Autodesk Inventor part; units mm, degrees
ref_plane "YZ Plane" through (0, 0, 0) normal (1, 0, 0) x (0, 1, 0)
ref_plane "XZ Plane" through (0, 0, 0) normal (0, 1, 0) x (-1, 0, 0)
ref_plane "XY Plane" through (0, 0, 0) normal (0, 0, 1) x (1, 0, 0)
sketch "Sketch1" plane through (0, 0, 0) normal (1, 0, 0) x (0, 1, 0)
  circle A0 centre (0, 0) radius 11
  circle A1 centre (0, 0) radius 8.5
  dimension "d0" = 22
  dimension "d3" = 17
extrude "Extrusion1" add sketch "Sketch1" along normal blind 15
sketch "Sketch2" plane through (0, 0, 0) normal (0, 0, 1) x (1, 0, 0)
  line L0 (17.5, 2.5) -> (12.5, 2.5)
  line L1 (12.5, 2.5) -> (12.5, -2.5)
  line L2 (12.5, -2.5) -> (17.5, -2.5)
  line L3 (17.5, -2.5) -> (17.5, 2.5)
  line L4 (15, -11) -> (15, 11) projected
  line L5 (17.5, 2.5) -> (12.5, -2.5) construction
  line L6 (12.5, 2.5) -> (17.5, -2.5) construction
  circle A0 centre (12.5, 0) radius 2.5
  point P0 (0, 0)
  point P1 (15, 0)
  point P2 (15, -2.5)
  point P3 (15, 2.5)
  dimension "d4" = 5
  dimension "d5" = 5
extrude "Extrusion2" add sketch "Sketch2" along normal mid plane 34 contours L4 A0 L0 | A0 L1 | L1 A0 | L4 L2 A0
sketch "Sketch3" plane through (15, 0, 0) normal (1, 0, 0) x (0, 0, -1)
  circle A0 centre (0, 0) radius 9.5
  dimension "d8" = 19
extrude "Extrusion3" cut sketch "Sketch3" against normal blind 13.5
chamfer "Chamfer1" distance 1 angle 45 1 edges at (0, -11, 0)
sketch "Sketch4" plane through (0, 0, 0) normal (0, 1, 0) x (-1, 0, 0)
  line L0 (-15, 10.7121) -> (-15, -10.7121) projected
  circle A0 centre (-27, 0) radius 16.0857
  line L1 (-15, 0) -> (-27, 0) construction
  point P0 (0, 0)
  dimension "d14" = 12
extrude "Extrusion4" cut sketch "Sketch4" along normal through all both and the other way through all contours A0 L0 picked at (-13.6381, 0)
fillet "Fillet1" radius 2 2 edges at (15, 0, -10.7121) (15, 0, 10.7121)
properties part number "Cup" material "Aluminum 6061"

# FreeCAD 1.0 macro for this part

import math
import FreeCAD as App
import Part
import Sketcher
from FreeCAD import Vector


def edges_at(feature, points):
    """Names of the edges that pass closest to the given points."""
    edges = feature.Shape.Edges
    near = lambda p: min(range(len(edges)), key=lambda i: edges[i].distToShape(Part.Vertex(*p))[0])
    return sorted({f"Edge{near(p) + 1}" for p in points})

doc = App.newDocument("Part")
params = doc.addObject("Spreadsheet::Sheet", "Params")
for row, (alias, value) in enumerate([
    ("sketch1_diameter", "22 mm"),
    ("sketch1_diameter2", "17 mm"),
    ("pad1_length", "15 mm"),
    ("sketch2_radius", "2.5 mm"),
    ("sketch2_width", "2.5 mm"),
    ("pad2_length", "34 mm"),
    ("sketch3_diameter", "19 mm"),
    ("pocket1_length", "13.5 mm"),
    ("chamfer_size", "1 mm"),
    ("sketch4_width", "12 mm"),
    ("fillet_radius", "2 mm"),
], start=1):
    params.set(f"A{row}", alias)
    params.set(f"B{row}", "=" + value)
    params.setAlias(f"B{row}", alias)

body = doc.addObject("PartDesign::Body", "Body")

# Sketch on YZ plane
sketch1 = body.newObject("Sketcher::SketchObject", "Sketch")
sketch1.AttachmentSupport = (doc.getObject("YZ_Plane"), [""])
sketch1.MapMode = "FlatFace"
sketch1.addGeometry([
    Part.Circle(Vector(0, 0, 0), Vector(0, 0, 1), 11),
    Part.Circle(Vector(0, 0, 0), Vector(0, 0, 1), 8),
], False)
sketch1.addConstraint([
    Sketcher.Constraint("Coincident", 0, 3, -1, 1),
    Sketcher.Constraint("Coincident", 1, 3, -1, 1),
    Sketcher.Constraint("Diameter", 0, 22.0),
    Sketcher.Constraint("Diameter", 1, 17.0),
])
sketch1.setExpression("Constraints[2]", "Params.sketch1_diameter")
sketch1.setExpression("Constraints[3]", "Params.sketch1_diameter2")
pad1 = body.newObject("PartDesign::Pad", "Pad")
pad1.Profile = sketch1
pad1.setExpression("Length", "Params.pad1_length")

# Sketch on XY plane
sketch2 = body.newObject("Sketcher::SketchObject", "Sketch001")
sketch2.AttachmentSupport = (doc.getObject("XY_Plane"), [""])
sketch2.MapMode = "FlatFace"
sketch2.addGeometry([
    Part.LineSegment(Vector(15, 2.5, 0), Vector(12.5, 2.5, 0)),
    Part.ArcOfCircle(Part.Circle(Vector(12.5, 0, 0), Vector(0, 0, 1), 2.5), math.radians(90), math.radians(270)),
    Part.LineSegment(Vector(12.5, -2.5, 0), Vector(15, -2.5, 0)),
    Part.LineSegment(Vector(15, -2.5, 0), Vector(15, 2.5, 0)),
], False)
sketch2.addConstraint([
    Sketcher.Constraint("Tangent", 0, 2, 1, 1),
    Sketcher.Constraint("Tangent", 1, 2, 2, 1),
    Sketcher.Constraint("Coincident", 2, 2, 3, 1),
    Sketcher.Constraint("Coincident", 3, 2, 0, 1),
    Sketcher.Constraint("Horizontal", 0),
    Sketcher.Constraint("Horizontal", 2),
    Sketcher.Constraint("Vertical", 3),
    Sketcher.Constraint("PointOnObject", 1, 3, -1),
    Sketcher.Constraint("Radius", 1, 2.5),
    Sketcher.Constraint("DistanceX", 0, 2, 0, 1, 2.5),
    Sketcher.Constraint("DistanceX", -1, 1, 2, 2, 15.0),
])
sketch2.setExpression("Constraints[8]", "Params.sketch2_radius")
sketch2.setExpression("Constraints[9]", "Params.sketch2_width")
pad2 = body.newObject("PartDesign::Pad", "Pad001")
pad2.Profile = sketch2
pad2.setExpression("Length", "Params.pad2_length")
pad2.Midplane = True

# Sketch on YZ plane
sketch3 = body.newObject("Sketcher::SketchObject", "Sketch002")
sketch3.AttachmentSupport = (doc.getObject("YZ_Plane"), [""])
sketch3.MapMode = "FlatFace"
sketch3.AttachmentOffset = App.Placement(Vector(0, 0, 15), App.Rotation())
sketch3.addGeometry(Part.Circle(Vector(0, 0, 0), Vector(0, 0, 1), 10), False)
sketch3.addConstraint([
    Sketcher.Constraint("Coincident", 0, 3, -1, 1),
    Sketcher.Constraint("Diameter", 0, 19.0),
])
sketch3.setExpression("Constraints[1]", "Params.sketch3_diameter")
pocket1 = body.newObject("PartDesign::Pocket", "Pocket")
pocket1.Profile = sketch3
pocket1.setExpression("Length", "Params.pocket1_length")
doc.recompute()

chamfer = body.newObject("PartDesign::Chamfer", "Chamfer")
chamfer.Base = (pocket1, edges_at(pocket1, [(0, -11, 0)]))
chamfer.setExpression("Size", "Params.chamfer_size")

# Sketch on XZ plane
sketch4 = body.newObject("Sketcher::SketchObject", "Sketch003")
sketch4.AttachmentSupport = (doc.getObject("XZ_Plane"), [""])
sketch4.MapMode = "FlatFace"
sketch4.addGeometry([
    Part.ArcOfCircle(Part.Circle(Vector(27, 0, 0), Vector(0, 0, 1), 16), math.radians(138), math.radians(222)),
    Part.LineSegment(Vector(15, -11, 0), Vector(15, 11, 0)),
], False)
sketch4.addConstraint([
    Sketcher.Constraint("Coincident", 0, 1, 1, 2),
    Sketcher.Constraint("Coincident", 1, 1, 0, 2),
    Sketcher.Constraint("Vertical", 1),
    Sketcher.Constraint("PointOnObject", 0, 3, -1),
    Sketcher.Constraint("DistanceX", 0, 1, 0, 3, 12.0),
    Sketcher.Constraint("DistanceX", -1, 1, 0, 3, 27.0),
    Sketcher.Constraint("Radius", 0, 16.0857),
])
sketch4.setExpression("Constraints[4]", "Params.sketch4_width")
pocket2 = body.newObject("PartDesign::Pocket", "Pocket001")
pocket2.Profile = sketch4
pocket2.Type = "ThroughAll"
pocket2.Midplane = True
doc.recompute()

fillet = body.newObject("PartDesign::Fillet", "Fillet")
fillet.Base = (pocket2, edges_at(pocket2, [(15, 0, -10.712), (15, 0, 10.712)]))
fillet.setExpression("Radius", "Params.fillet_radius")

doc.recompute()
